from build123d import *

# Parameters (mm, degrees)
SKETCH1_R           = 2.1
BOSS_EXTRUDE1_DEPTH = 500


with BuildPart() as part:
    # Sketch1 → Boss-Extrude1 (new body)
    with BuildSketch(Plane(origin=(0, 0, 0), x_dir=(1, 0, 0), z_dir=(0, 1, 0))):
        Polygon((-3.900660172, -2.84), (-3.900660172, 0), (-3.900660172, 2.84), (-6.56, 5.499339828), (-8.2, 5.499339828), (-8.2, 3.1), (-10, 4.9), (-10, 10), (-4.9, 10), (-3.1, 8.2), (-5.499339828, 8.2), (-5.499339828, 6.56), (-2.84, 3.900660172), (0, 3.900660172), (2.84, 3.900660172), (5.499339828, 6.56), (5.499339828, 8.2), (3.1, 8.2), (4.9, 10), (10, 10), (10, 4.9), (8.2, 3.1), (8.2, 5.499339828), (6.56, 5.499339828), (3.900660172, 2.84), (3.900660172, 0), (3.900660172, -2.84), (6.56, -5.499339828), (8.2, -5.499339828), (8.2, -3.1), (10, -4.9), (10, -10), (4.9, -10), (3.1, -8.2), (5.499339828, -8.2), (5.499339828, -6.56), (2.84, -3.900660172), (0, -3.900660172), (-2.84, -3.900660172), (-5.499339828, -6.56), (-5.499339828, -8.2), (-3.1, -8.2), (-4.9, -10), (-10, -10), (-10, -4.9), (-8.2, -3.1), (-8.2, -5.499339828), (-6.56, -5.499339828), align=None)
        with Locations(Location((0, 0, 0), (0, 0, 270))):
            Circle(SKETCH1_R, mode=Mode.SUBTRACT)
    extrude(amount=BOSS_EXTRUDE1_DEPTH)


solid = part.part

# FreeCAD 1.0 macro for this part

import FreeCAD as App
import Part
import Sketcher

V = App.Vector

doc = App.newDocument("Part")
body = doc.addObject("PartDesign::Body", "Body")

# Sketch on XZ plane
sketch1 = doc.addObject("Sketcher::SketchObject", "Sketch")
body.addObject(sketch1)
sketch1.AttachmentSupport = (doc.XZ_Plane, [""])
sketch1.MapMode = "FlatFace"
sketch1.addGeometry(Part.LineSegment(V(-3.90066, -2.84, 0), V(-3.90066, 2.84, 0)), False)
sketch1.addGeometry(Part.LineSegment(V(-3.90066, 2.84, 0), V(-6.56, 5.49934, 0)), False)
sketch1.addGeometry(Part.LineSegment(V(-6.56, 5.49934, 0), V(-8.2, 5.49934, 0)), False)
sketch1.addGeometry(Part.LineSegment(V(-8.2, 5.49934, 0), V(-8.2, 3.1, 0)), False)
sketch1.addGeometry(Part.LineSegment(V(-8.2, 3.1, 0), V(-10, 4.9, 0)), False)
sketch1.addGeometry(Part.LineSegment(V(-10, 4.9, 0), V(-10, 10, 0)), False)
sketch1.addGeometry(Part.LineSegment(V(-10, 10, 0), V(-4.9, 10, 0)), False)
sketch1.addGeometry(Part.LineSegment(V(-4.9, 10, 0), V(-3.1, 8.2, 0)), False)
sketch1.addGeometry(Part.LineSegment(V(-3.1, 8.2, 0), V(-5.49934, 8.2, 0)), False)
sketch1.addGeometry(Part.LineSegment(V(-5.49934, 8.2, 0), V(-5.49934, 6.56, 0)), False)
sketch1.addGeometry(Part.LineSegment(V(-5.49934, 6.56, 0), V(-2.84, 3.90066, 0)), False)
sketch1.addGeometry(Part.LineSegment(V(-2.84, 3.90066, 0), V(2.84, 3.90066, 0)), False)
sketch1.addGeometry(Part.LineSegment(V(2.84, 3.90066, 0), V(5.49934, 6.56, 0)), False)
sketch1.addGeometry(Part.LineSegment(V(5.49934, 6.56, 0), V(5.49934, 8.2, 0)), False)
sketch1.addGeometry(Part.LineSegment(V(5.49934, 8.2, 0), V(3.1, 8.2, 0)), False)
sketch1.addGeometry(Part.LineSegment(V(3.1, 8.2, 0), V(4.9, 10, 0)), False)
sketch1.addGeometry(Part.LineSegment(V(4.9, 10, 0), V(10, 10, 0)), False)
sketch1.addGeometry(Part.LineSegment(V(10, 10, 0), V(10, 4.9, 0)), False)
sketch1.addGeometry(Part.LineSegment(V(10, 4.9, 0), V(8.2, 3.1, 0)), False)
sketch1.addGeometry(Part.LineSegment(V(8.2, 3.1, 0), V(8.2, 5.49934, 0)), False)
sketch1.addGeometry(Part.LineSegment(V(8.2, 5.49934, 0), V(6.56, 5.49934, 0)), False)
sketch1.addGeometry(Part.LineSegment(V(6.56, 5.49934, 0), V(3.90066, 2.84, 0)), False)
sketch1.addGeometry(Part.LineSegment(V(3.90066, 2.84, 0), V(3.90066, -2.84, 0)), False)
sketch1.addGeometry(Part.LineSegment(V(3.90066, -2.84, 0), V(6.56, -5.49934, 0)), False)
sketch1.addGeometry(Part.LineSegment(V(6.56, -5.49934, 0), V(8.2, -5.49934, 0)), False)
sketch1.addGeometry(Part.LineSegment(V(8.2, -5.49934, 0), V(8.2, -3.1, 0)), False)
sketch1.addGeometry(Part.LineSegment(V(8.2, -3.1, 0), V(10, -4.9, 0)), False)
sketch1.addGeometry(Part.LineSegment(V(10, -4.9, 0), V(10, -10, 0)), False)
sketch1.addGeometry(Part.LineSegment(V(10, -10, 0), V(4.9, -10, 0)), False)
sketch1.addGeometry(Part.LineSegment(V(4.9, -10, 0), V(3.1, -8.2, 0)), False)
sketch1.addGeometry(Part.LineSegment(V(3.1, -8.2, 0), V(5.49934, -8.2, 0)), False)
sketch1.addGeometry(Part.LineSegment(V(5.49934, -8.2, 0), V(5.49934, -6.56, 0)), False)
sketch1.addGeometry(Part.LineSegment(V(5.49934, -6.56, 0), V(2.84, -3.90066, 0)), False)
sketch1.addGeometry(Part.LineSegment(V(2.84, -3.90066, 0), V(-2.84, -3.90066, 0)), False)
sketch1.addGeometry(Part.LineSegment(V(-2.84, -3.90066, 0), V(-5.49934, -6.56, 0)), False)
sketch1.addGeometry(Part.LineSegment(V(-5.49934, -6.56, 0), V(-5.49934, -8.2, 0)), False)
sketch1.addGeometry(Part.LineSegment(V(-5.49934, -8.2, 0), V(-3.1, -8.2, 0)), False)
sketch1.addGeometry(Part.LineSegment(V(-3.1, -8.2, 0), V(-4.9, -10, 0)), False)
sketch1.addGeometry(Part.LineSegment(V(-4.9, -10, 0), V(-10, -10, 0)), False)
sketch1.addGeometry(Part.LineSegment(V(-10, -10, 0), V(-10, -4.9, 0)), False)
sketch1.addGeometry(Part.LineSegment(V(-10, -4.9, 0), V(-8.2, -3.1, 0)), False)
sketch1.addGeometry(Part.LineSegment(V(-8.2, -3.1, 0), V(-8.2, -5.49934, 0)), False)
sketch1.addGeometry(Part.LineSegment(V(-8.2, -5.49934, 0), V(-6.56, -5.49934, 0)), False)
sketch1.addGeometry(Part.LineSegment(V(-6.56, -5.49934, 0), V(-3.90066, -2.84, 0)), False)
sketch1.addGeometry(Part.Circle(V(0, 0, 0), V(0, 0, 1), 2.1), False)
sketch1.addConstraint(Sketcher.Constraint("Coincident", 0, 2, 1, 1))
sketch1.addConstraint(Sketcher.Constraint("Coincident", 1, 2, 2, 1))
sketch1.addConstraint(Sketcher.Constraint("Coincident", 2, 2, 3, 1))
sketch1.addConstraint(Sketcher.Constraint("Coincident", 3, 2, 4, 1))
sketch1.addConstraint(Sketcher.Constraint("Coincident", 4, 2, 5, 1))
sketch1.addConstraint(Sketcher.Constraint("Coincident", 5, 2, 6, 1))
sketch1.addConstraint(Sketcher.Constraint("Coincident", 6, 2, 7, 1))
sketch1.addConstraint(Sketcher.Constraint("Coincident", 7, 2, 8, 1))
sketch1.addConstraint(Sketcher.Constraint("Coincident", 8, 2, 9, 1))
sketch1.addConstraint(Sketcher.Constraint("Coincident", 9, 2, 10, 1))
sketch1.addConstraint(Sketcher.Constraint("Coincident", 10, 2, 11, 1))
sketch1.addConstraint(Sketcher.Constraint("Coincident", 11, 2, 12, 1))
sketch1.addConstraint(Sketcher.Constraint("Coincident", 12, 2, 13, 1))
sketch1.addConstraint(Sketcher.Constraint("Coincident", 13, 2, 14, 1))
sketch1.addConstraint(Sketcher.Constraint("Coincident", 14, 2, 15, 1))
sketch1.addConstraint(Sketcher.Constraint("Coincident", 15, 2, 16, 1))
sketch1.addConstraint(Sketcher.Constraint("Coincident", 16, 2, 17, 1))
sketch1.addConstraint(Sketcher.Constraint("Coincident", 17, 2, 18, 1))
sketch1.addConstraint(Sketcher.Constraint("Coincident", 18, 2, 19, 1))
sketch1.addConstraint(Sketcher.Constraint("Coincident", 19, 2, 20, 1))
sketch1.addConstraint(Sketcher.Constraint("Coincident", 20, 2, 21, 1))
sketch1.addConstraint(Sketcher.Constraint("Coincident", 21, 2, 22, 1))
sketch1.addConstraint(Sketcher.Constraint("Coincident", 22, 2, 23, 1))
sketch1.addConstraint(Sketcher.Constraint("Coincident", 23, 2, 24, 1))
sketch1.addConstraint(Sketcher.Constraint("Coincident", 24, 2, 25, 1))
sketch1.addConstraint(Sketcher.Constraint("Coincident", 25, 2, 26, 1))
sketch1.addConstraint(Sketcher.Constraint("Coincident", 26, 2, 27, 1))
sketch1.addConstraint(Sketcher.Constraint("Coincident", 27, 2, 28, 1))
sketch1.addConstraint(Sketcher.Constraint("Coincident", 28, 2, 29, 1))
sketch1.addConstraint(Sketcher.Constraint("Coincident", 29, 2, 30, 1))
sketch1.addConstraint(Sketcher.Constraint("Coincident", 30, 2, 31, 1))
sketch1.addConstraint(Sketcher.Constraint("Coincident", 31, 2, 32, 1))
sketch1.addConstraint(Sketcher.Constraint("Coincident", 32, 2, 33, 1))
sketch1.addConstraint(Sketcher.Constraint("Coincident", 33, 2, 34, 1))
sketch1.addConstraint(Sketcher.Constraint("Coincident", 34, 2, 35, 1))
sketch1.addConstraint(Sketcher.Constraint("Coincident", 35, 2, 36, 1))
sketch1.addConstraint(Sketcher.Constraint("Coincident", 36, 2, 37, 1))
sketch1.addConstraint(Sketcher.Constraint("Coincident", 37, 2, 38, 1))
sketch1.addConstraint(Sketcher.Constraint("Coincident", 38, 2, 39, 1))
sketch1.addConstraint(Sketcher.Constraint("Coincident", 39, 2, 40, 1))
sketch1.addConstraint(Sketcher.Constraint("Coincident", 40, 2, 41, 1))
sketch1.addConstraint(Sketcher.Constraint("Coincident", 41, 2, 42, 1))
sketch1.addConstraint(Sketcher.Constraint("Coincident", 42, 2, 43, 1))
sketch1.addConstraint(Sketcher.Constraint("Coincident", 43, 2, 0, 1))
sketch1.addConstraint(Sketcher.Constraint("Vertical", 0))
sketch1.addConstraint(Sketcher.Constraint("Horizontal", 2))
sketch1.addConstraint(Sketcher.Constraint("Vertical", 3))
sketch1.addConstraint(Sketcher.Constraint("Vertical", 5))
sketch1.addConstraint(Sketcher.Constraint("Horizontal", 6))
sketch1.addConstraint(Sketcher.Constraint("Horizontal", 8))
sketch1.addConstraint(Sketcher.Constraint("Vertical", 9))
sketch1.addConstraint(Sketcher.Constraint("Horizontal", 11))
sketch1.addConstraint(Sketcher.Constraint("Vertical", 13))
sketch1.addConstraint(Sketcher.Constraint("Horizontal", 14))
sketch1.addConstraint(Sketcher.Constraint("Horizontal", 16))
sketch1.addConstraint(Sketcher.Constraint("Vertical", 17))
sketch1.addConstraint(Sketcher.Constraint("Vertical", 19))
sketch1.addConstraint(Sketcher.Constraint("Horizontal", 20))
sketch1.addConstraint(Sketcher.Constraint("Vertical", 22))
sketch1.addConstraint(Sketcher.Constraint("Horizontal", 24))
sketch1.addConstraint(Sketcher.Constraint("Vertical", 25))
sketch1.addConstraint(Sketcher.Constraint("Vertical", 27))
sketch1.addConstraint(Sketcher.Constraint("Horizontal", 28))
sketch1.addConstraint(Sketcher.Constraint("Horizontal", 30))
sketch1.addConstraint(Sketcher.Constraint("Vertical", 31))
sketch1.addConstraint(Sketcher.Constraint("Horizontal", 33))
sketch1.addConstraint(Sketcher.Constraint("Vertical", 35))
sketch1.addConstraint(Sketcher.Constraint("Horizontal", 36))
sketch1.addConstraint(Sketcher.Constraint("Horizontal", 38))
sketch1.addConstraint(Sketcher.Constraint("Vertical", 39))
sketch1.addConstraint(Sketcher.Constraint("Vertical", 41))
sketch1.addConstraint(Sketcher.Constraint("Horizontal", 42))
sketch1.addConstraint(Sketcher.Constraint("Coincident", 44, 3, -1, 1))
sketch1.addConstraint(Sketcher.Constraint("Symmetric", 0, 2, 22, 2, -1, 1))
sketch1.addConstraint(Sketcher.Constraint("Symmetric", 1, 2, 23, 2, -1, 1))
sketch1.addConstraint(Sketcher.Constraint("Symmetric", 3, 2, 25, 2, -1, 1))
sketch1.addConstraint(Sketcher.Constraint("Symmetric", 4, 2, 26, 2, -1, 1))
sketch1.addConstraint(Sketcher.Constraint("Symmetric", 6, 2, 28, 2, -1, 1))
sketch1.addConstraint(Sketcher.Constraint("Symmetric", 7, 2, 29, 2, -1, 1))
sketch1.addConstraint(Sketcher.Constraint("Symmetric", 9, 2, 31, 2, -1, 1))
sketch1.addConstraint(Sketcher.Constraint("Symmetric", 10, 2, 32, 2, -1, 1))
sketch1.addConstraint(Sketcher.Constraint("Symmetric", 12, 2, 34, 2, -1, 1))
sketch1.addConstraint(Sketcher.Constraint("Symmetric", 14, 2, 36, 2, -1, 1))
sketch1.addConstraint(Sketcher.Constraint("Symmetric", 15, 2, 37, 2, -1, 1))
sketch1.addConstraint(Sketcher.Constraint("Symmetric", 17, 2, 39, 2, -1, 1))
sketch1.addConstraint(Sketcher.Constraint("Symmetric", 18, 2, 40, 2, -1, 1))
sketch1.addConstraint(Sketcher.Constraint("Symmetric", 20, 2, 42, 2, -1, 1))
sketch1.addConstraint(Sketcher.Constraint("Symmetric", 9, 2, 12, 2, -2))
sketch1.addConstraint(Sketcher.Constraint("Symmetric", 7, 2, 14, 2, -2))
sketch1.addConstraint(Sketcher.Constraint("Symmetric", 6, 2, 15, 2, -2))
sketch1.addConstraint(Sketcher.Constraint("Symmetric", 4, 2, 17, 2, -2))
sketch1.addConstraint(Sketcher.Constraint("Symmetric", 3, 2, 18, 2, -2))
sketch1.addConstraint(Sketcher.Constraint("Symmetric", 1, 2, 20, 2, -2))
sketch1.addConstraint(Sketcher.Constraint("Parallel", 1, 4))
sketch1.addConstraint(Sketcher.Constraint("Parallel", 4, 7))
sketch1.addConstraint(Sketcher.Constraint("Parallel", 7, 10))
sketch1.addConstraint(Sketcher.Constraint("Perpendicular", 10, 12))
sketch1.addConstraint(Sketcher.Constraint("Parallel", 12, 15))
sketch1.addConstraint(Sketcher.Constraint("Parallel", 18, 21))
sketch1.addConstraint(Sketcher.Constraint("Perpendicular", 32, 34))
sketch1.addConstraint(Sketcher.Constraint("Parallel", 40, 43))
sketch1.addConstraint(Sketcher.Constraint("Equal", 33, 0))
sketch1.addConstraint(Sketcher.Constraint("Equal", 36, 3))
sketch1.addConstraint(Sketcher.Constraint("Equal", 38, 5))
sketch1.addConstraint(Sketcher.Constraint("Equal", 42, 9))
sketch1.addConstraint(Sketcher.Constraint("Equal", 4, 7))
sketch1.addConstraint(Sketcher.Constraint("Equal", 1, 10))
sketch1.addConstraint(Sketcher.Constraint("Diameter", 44, 4.2))
sketch1.addConstraint(Sketcher.Constraint("DistanceX", 6, 1, 6, 2, 5.1))
sketch1.addConstraint(Sketcher.Constraint("DistanceX", 4, 2, -1, 1, 10.0))
sketch1.addConstraint(Sketcher.Constraint("DistanceX", 7, 2, 15, 2, 8.0))
sketch1.addConstraint(Sketcher.Constraint("DistanceX", 2, 2, 2, 1, 1.64))
sketch1.addConstraint(Sketcher.Constraint("DistanceX", 11, 1, 11, 2, 5.68))
sketch1.addConstraint(Sketcher.Constraint("DistanceX", 8, 2, 8, 1, 2.39934))
pad1 = doc.addObject("PartDesign::Pad", "Pad")
body.addObject(pad1)
pad1.Profile = sketch1
pad1.Length = 500
pad1.Reversed = True

doc.recompute()
